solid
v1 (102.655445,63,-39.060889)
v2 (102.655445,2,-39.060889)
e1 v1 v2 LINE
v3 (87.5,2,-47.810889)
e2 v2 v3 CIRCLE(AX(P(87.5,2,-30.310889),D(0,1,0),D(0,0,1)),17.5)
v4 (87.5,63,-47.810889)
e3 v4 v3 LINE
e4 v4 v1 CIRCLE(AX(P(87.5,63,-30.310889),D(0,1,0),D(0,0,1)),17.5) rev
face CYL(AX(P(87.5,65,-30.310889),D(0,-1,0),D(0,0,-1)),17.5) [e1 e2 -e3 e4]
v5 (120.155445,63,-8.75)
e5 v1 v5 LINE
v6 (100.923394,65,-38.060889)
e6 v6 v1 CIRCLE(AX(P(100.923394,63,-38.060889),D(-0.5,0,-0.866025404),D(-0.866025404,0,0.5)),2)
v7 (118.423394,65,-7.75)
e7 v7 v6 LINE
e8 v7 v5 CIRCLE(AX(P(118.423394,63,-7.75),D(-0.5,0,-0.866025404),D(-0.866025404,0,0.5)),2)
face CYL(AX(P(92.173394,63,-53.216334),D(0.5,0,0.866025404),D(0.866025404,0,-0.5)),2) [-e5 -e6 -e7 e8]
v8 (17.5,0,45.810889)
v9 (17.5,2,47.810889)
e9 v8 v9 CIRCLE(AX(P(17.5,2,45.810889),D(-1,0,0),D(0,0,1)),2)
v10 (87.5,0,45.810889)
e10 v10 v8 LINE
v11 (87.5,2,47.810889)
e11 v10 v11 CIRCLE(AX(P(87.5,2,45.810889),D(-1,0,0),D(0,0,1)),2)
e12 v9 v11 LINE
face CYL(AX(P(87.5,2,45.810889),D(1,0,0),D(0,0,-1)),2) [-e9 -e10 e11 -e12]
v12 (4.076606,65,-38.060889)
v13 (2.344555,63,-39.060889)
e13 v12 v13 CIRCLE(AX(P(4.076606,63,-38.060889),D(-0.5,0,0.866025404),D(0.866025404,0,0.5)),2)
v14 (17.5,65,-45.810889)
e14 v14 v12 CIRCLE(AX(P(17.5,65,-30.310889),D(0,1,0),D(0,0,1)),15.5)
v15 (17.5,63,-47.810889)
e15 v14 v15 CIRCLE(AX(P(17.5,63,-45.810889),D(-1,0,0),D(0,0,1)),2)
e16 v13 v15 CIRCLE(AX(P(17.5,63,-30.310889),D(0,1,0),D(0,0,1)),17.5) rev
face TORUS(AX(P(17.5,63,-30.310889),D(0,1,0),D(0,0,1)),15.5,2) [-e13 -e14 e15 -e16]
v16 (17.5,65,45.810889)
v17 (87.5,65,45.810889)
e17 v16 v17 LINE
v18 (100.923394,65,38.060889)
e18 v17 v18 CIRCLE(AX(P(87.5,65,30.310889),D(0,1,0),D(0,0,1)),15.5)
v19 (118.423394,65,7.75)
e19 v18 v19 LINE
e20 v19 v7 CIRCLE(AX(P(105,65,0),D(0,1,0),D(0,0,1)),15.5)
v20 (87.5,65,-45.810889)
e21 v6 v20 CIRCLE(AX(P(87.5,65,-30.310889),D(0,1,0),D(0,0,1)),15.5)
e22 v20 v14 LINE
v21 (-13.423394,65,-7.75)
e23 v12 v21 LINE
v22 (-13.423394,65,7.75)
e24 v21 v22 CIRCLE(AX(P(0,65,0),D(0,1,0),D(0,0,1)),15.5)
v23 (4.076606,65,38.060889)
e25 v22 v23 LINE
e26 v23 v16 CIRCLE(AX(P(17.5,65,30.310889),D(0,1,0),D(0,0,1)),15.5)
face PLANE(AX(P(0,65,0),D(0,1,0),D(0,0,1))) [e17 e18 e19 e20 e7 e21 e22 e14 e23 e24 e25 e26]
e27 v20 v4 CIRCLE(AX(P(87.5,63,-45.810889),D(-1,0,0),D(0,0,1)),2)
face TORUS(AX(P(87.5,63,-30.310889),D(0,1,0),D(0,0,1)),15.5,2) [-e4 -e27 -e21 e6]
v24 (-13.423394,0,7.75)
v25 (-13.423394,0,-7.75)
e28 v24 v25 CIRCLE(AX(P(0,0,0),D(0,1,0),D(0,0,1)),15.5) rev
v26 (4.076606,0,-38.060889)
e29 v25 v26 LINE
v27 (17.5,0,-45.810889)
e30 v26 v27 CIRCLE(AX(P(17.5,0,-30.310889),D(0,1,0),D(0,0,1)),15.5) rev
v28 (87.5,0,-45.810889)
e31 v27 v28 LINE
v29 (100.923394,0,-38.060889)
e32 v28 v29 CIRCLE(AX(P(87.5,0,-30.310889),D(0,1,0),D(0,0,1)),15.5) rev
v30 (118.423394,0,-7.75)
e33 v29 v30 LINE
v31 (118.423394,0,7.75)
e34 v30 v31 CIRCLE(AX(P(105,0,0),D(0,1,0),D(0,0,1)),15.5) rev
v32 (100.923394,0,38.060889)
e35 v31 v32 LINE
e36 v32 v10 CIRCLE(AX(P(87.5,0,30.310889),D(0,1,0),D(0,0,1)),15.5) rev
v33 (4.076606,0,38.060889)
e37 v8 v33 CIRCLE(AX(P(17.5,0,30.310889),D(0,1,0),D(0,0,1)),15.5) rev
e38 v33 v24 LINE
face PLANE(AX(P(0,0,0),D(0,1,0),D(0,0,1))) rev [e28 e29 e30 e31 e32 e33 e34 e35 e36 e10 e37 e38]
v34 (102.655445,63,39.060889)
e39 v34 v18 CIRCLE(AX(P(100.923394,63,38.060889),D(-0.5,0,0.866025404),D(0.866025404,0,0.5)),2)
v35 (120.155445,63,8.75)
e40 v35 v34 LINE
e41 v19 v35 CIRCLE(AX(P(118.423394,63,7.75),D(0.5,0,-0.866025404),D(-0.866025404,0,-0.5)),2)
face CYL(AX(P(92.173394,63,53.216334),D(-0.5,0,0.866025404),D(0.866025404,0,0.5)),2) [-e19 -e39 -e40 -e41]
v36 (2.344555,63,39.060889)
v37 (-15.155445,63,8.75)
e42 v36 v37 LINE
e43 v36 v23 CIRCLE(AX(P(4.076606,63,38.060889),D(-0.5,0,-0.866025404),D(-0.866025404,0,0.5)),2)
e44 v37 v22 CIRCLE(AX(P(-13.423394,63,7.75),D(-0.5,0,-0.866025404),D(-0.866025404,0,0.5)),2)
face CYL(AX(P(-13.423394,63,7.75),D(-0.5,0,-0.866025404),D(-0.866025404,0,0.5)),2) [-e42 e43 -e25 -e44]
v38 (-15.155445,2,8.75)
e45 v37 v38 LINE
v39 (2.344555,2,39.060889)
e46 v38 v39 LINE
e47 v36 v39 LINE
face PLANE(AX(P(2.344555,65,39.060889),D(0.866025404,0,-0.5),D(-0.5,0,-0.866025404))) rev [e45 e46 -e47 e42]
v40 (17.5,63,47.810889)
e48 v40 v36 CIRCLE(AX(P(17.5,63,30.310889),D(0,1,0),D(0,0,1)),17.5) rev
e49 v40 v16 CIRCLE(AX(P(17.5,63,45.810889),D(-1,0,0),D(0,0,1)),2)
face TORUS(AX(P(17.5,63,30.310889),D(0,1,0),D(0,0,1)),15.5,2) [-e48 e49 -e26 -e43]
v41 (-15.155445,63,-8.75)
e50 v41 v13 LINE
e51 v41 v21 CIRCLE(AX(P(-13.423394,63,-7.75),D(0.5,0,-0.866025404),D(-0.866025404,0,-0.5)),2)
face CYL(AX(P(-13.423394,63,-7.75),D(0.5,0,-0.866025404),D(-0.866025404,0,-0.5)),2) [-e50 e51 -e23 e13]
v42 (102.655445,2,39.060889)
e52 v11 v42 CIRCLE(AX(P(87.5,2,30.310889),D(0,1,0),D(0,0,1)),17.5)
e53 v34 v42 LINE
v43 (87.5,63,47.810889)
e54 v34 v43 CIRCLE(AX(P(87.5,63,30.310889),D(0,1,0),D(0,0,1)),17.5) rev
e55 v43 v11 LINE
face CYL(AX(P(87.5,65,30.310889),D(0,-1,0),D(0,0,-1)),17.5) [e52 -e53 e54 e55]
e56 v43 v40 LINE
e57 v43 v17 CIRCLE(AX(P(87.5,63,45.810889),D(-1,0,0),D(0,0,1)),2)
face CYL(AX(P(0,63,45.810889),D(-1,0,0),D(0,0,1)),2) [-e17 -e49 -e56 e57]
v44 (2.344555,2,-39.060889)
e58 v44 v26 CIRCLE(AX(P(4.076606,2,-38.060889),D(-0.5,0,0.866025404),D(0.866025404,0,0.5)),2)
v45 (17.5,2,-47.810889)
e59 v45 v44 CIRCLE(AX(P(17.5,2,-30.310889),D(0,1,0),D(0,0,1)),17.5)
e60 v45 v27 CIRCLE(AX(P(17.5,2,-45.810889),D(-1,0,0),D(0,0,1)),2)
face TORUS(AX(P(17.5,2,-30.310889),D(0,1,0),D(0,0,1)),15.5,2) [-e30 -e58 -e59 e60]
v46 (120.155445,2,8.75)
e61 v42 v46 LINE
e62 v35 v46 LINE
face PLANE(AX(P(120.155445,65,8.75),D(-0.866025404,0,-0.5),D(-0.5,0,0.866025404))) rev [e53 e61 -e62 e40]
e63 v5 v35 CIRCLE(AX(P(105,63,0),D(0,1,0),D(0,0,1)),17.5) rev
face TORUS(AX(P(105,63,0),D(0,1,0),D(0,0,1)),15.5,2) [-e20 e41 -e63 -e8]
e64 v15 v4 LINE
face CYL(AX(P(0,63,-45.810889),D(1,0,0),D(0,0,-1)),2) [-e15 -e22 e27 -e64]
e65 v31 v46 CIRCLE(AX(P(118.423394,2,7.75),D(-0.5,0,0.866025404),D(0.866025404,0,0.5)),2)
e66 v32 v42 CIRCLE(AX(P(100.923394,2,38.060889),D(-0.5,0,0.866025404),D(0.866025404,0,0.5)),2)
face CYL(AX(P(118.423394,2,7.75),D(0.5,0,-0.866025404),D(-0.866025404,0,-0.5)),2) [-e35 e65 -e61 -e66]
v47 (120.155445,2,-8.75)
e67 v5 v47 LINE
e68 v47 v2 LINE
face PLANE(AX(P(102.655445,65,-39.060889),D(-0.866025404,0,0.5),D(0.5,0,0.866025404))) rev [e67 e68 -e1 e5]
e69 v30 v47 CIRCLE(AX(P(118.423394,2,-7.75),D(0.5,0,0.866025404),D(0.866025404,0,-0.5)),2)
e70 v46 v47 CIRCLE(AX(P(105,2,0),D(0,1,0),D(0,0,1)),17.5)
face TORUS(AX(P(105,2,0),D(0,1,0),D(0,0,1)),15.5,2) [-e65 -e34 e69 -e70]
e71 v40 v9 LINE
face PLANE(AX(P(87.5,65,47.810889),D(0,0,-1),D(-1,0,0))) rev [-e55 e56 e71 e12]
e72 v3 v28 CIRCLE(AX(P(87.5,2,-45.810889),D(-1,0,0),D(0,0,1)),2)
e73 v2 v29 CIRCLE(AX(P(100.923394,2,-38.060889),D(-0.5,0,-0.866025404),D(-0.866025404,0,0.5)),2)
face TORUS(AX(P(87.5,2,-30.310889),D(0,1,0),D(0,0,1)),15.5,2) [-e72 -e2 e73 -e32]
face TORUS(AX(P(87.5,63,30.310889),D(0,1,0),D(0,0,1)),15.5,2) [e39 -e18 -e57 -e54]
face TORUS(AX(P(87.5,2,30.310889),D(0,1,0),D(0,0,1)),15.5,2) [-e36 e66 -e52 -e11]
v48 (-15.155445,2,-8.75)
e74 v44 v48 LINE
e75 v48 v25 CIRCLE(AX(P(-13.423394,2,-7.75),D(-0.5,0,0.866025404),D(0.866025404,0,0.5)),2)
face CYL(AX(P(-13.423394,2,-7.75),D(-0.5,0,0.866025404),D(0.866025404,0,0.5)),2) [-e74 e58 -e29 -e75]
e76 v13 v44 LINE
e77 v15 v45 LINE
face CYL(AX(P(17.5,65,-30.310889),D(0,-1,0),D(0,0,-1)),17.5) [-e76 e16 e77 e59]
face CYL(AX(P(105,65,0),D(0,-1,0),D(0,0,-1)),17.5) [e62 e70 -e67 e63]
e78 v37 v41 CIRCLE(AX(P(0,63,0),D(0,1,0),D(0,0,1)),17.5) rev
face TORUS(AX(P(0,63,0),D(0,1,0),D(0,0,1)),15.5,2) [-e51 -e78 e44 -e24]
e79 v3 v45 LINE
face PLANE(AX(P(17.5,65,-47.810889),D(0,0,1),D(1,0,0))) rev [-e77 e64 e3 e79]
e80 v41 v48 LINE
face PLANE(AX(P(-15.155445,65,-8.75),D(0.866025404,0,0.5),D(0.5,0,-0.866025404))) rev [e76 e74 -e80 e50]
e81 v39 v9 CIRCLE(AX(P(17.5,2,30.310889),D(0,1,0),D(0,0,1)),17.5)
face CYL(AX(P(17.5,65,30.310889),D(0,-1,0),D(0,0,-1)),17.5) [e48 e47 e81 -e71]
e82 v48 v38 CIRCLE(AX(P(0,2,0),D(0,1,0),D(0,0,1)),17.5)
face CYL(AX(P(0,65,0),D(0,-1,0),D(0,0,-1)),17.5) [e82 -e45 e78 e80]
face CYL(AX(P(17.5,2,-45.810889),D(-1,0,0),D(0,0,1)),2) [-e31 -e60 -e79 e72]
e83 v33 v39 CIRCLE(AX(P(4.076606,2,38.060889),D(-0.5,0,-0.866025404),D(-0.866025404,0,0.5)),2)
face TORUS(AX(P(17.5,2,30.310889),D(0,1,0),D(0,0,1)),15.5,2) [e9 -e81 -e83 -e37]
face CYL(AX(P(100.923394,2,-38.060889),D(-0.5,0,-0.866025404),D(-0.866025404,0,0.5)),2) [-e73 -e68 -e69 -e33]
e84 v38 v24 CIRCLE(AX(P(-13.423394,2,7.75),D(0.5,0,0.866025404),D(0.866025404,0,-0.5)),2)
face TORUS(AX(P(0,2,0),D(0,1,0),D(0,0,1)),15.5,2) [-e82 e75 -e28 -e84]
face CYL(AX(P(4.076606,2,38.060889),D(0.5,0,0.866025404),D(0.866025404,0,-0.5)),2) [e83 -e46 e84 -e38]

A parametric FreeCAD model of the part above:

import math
import FreeCAD as App
import Part
import Sketcher
Q = App.Units.Quantity


def edges_at(feature, points):
    """Names of the edges that pass closest to the given points."""
    edges = feature.Shape.Edges
    near = lambda p: min(range(len(edges)), key=lambda i: edges[i].distToShape(Part.Vertex(*p))[0])
    return sorted({f"Edge{near(p) + 1}" for p in points})

doc = App.newDocument("Part")
body = doc.addObject("PartDesign::Body", "Body")

# Sketch on XZ plane
sketch1 = doc.addObject("Sketcher::SketchObject", "Sketch")
body.addObject(sketch1)
sketch1.AttachmentSupport = (doc.XZ_Plane, [""])
sketch1.MapMode = "FlatFace"
sketch1.addGeometry(Part.LineSegment(App.Vector(2, -39, 0), App.Vector(-15, -9, 0)), False)
sketch1.addGeometry(Part.ArcOfCircle(Part.Circle(App.Vector(0, 0, 0), App.Vector(0, 0, 1), 17), math.radians(150), math.radians(210)), False)
sketch1.addGeometry(Part.LineSegment(App.Vector(-15, 9, 0), App.Vector(2, 39, 0)), False)
sketch1.addGeometry(Part.ArcOfCircle(Part.Circle(App.Vector(17, 30, 0), App.Vector(0, 0, 1), 17), math.radians(90), math.radians(150)), False)
sketch1.addGeometry(Part.LineSegment(App.Vector(18, 48, 0), App.Vector(88, 48, 0)), False)
sketch1.addGeometry(Part.ArcOfCircle(Part.Circle(App.Vector(88, 30, 0), App.Vector(0, 0, 1), 17), math.radians(30), math.radians(90)), False)
sketch1.addGeometry(Part.LineSegment(App.Vector(103, 39, 0), App.Vector(120, 9, 0)), False)
sketch1.addGeometry(Part.ArcOfCircle(Part.Circle(App.Vector(105, 0, 0), App.Vector(0, 0, 1), 17), math.radians(-30), math.radians(30)), False)
sketch1.addGeometry(Part.LineSegment(App.Vector(120, -9, 0), App.Vector(103, -39, 0)), False)
sketch1.addGeometry(Part.ArcOfCircle(Part.Circle(App.Vector(88, -30, 0), App.Vector(0, 0, 1), 17), math.radians(-90), math.radians(-30)), False)
sketch1.addGeometry(Part.LineSegment(App.Vector(88, -48, 0), App.Vector(18, -48, 0)), False)
sketch1.addGeometry(Part.ArcOfCircle(Part.Circle(App.Vector(17, -30, 0), App.Vector(0, 0, 1), 17), math.radians(-150), math.radians(-90)), False)
sketch1.addConstraint(Sketcher.Constraint("Tangent", 0, 2, 1, 2))
sketch1.addConstraint(Sketcher.Constraint("Tangent", 1, 1, 2, 1))
sketch1.addConstraint(Sketcher.Constraint("Tangent", 2, 2, 3, 2))
sketch1.addConstraint(Sketcher.Constraint("Tangent", 3, 1, 4, 1))
sketch1.addConstraint(Sketcher.Constraint("Tangent", 4, 2, 5, 2))
sketch1.addConstraint(Sketcher.Constraint("Tangent", 5, 1, 6, 1))
sketch1.addConstraint(Sketcher.Constraint("Tangent", 6, 2, 7, 2))
sketch1.addConstraint(Sketcher.Constraint("Tangent", 7, 1, 8, 1))
sketch1.addConstraint(Sketcher.Constraint("Tangent", 8, 2, 9, 2))
sketch1.addConstraint(Sketcher.Constraint("Tangent", 9, 1, 10, 1))
sketch1.addConstraint(Sketcher.Constraint("Tangent", 10, 2, 11, 2))
sketch1.addConstraint(Sketcher.Constraint("Tangent", 11, 1, 0, 1))
sketch1.addConstraint(Sketcher.Constraint("Horizontal", 4))
sketch1.addConstraint(Sketcher.Constraint("Horizontal", 10))
sketch1.addConstraint(Sketcher.Constraint("Coincident", 1, 3, -1, 1))
sketch1.addConstraint(Sketcher.Constraint("Equal", 1, 3))
sketch1.addConstraint(Sketcher.Constraint("Equal", 3, 5))
sketch1.addConstraint(Sketcher.Constraint("Equal", 5, 7))
sketch1.addConstraint(Sketcher.Constraint("Equal", 7, 9))
sketch1.addConstraint(Sketcher.Constraint("Equal", 9, 11))
sketch1.addConstraint(Sketcher.Constraint("Symmetric", 5, 3, 9, 3, -1))
sketch1.addConstraint(Sketcher.Constraint("PointOnObject", 7, 3, -1))
sketch1.addConstraint(Sketcher.Constraint("Parallel", 0, 6))
sketch1.addConstraint(Sketcher.Constraint("Parallel", 2, 8))
sketch1.addConstraint(Sketcher.Constraint("Radius", 1, Q("17.5 mm")))
sketch1.addConstraint(Sketcher.Constraint("DistanceX", 4, 1, 4, 2, Q("70 mm")))
sketch1.addConstraint(Sketcher.Constraint("Angle", 0, Q("120 deg")))
sketch1.addConstraint(Sketcher.Constraint("Distance", 0, Q("35 mm")))
pad1 = doc.addObject("PartDesign::Pad", "Pad")
body.addObject(pad1)
pad1.Profile = sketch1
pad1.Length = 65
pad1.Reversed = True
doc.recompute()

fillet = doc.addObject("PartDesign::Fillet", "Fillet")
body.addObject(fillet)
fillet.Base = (pad1, edges_at(pad1, [
    (8.75, 65, 45.466),
    (-6.405, 0, -23.905),
    (8.75, 0, -45.466),
    (52.5, 0, -47.811),
    (96.25, 0, -45.466),
    (111.405, 0, -23.905),
    (122.5, 0, 0),
    (52.5, 65, 47.811),
    (111.405, 0, 23.905),
    (96.25, 0, 45.466),
    (52.5, 0, 47.811),
    (8.75, 0, 45.466),
    (-6.405, 0, 23.905),
    (-17.5, 0, 0),
    (96.25, 65, 45.466),
    (111.405, 65, 23.905),
    (122.5, 65, 0),
    (111.405, 65, -23.905),
    (96.25, 65, -45.466),
    (52.5, 65, -47.811),
    (8.75, 65, -45.466),
    (-6.405, 65, -23.905),
    (-17.5, 65, 0),
    (-6.405, 65, 23.905),
]))
fillet.Radius = 2

doc.recompute()
